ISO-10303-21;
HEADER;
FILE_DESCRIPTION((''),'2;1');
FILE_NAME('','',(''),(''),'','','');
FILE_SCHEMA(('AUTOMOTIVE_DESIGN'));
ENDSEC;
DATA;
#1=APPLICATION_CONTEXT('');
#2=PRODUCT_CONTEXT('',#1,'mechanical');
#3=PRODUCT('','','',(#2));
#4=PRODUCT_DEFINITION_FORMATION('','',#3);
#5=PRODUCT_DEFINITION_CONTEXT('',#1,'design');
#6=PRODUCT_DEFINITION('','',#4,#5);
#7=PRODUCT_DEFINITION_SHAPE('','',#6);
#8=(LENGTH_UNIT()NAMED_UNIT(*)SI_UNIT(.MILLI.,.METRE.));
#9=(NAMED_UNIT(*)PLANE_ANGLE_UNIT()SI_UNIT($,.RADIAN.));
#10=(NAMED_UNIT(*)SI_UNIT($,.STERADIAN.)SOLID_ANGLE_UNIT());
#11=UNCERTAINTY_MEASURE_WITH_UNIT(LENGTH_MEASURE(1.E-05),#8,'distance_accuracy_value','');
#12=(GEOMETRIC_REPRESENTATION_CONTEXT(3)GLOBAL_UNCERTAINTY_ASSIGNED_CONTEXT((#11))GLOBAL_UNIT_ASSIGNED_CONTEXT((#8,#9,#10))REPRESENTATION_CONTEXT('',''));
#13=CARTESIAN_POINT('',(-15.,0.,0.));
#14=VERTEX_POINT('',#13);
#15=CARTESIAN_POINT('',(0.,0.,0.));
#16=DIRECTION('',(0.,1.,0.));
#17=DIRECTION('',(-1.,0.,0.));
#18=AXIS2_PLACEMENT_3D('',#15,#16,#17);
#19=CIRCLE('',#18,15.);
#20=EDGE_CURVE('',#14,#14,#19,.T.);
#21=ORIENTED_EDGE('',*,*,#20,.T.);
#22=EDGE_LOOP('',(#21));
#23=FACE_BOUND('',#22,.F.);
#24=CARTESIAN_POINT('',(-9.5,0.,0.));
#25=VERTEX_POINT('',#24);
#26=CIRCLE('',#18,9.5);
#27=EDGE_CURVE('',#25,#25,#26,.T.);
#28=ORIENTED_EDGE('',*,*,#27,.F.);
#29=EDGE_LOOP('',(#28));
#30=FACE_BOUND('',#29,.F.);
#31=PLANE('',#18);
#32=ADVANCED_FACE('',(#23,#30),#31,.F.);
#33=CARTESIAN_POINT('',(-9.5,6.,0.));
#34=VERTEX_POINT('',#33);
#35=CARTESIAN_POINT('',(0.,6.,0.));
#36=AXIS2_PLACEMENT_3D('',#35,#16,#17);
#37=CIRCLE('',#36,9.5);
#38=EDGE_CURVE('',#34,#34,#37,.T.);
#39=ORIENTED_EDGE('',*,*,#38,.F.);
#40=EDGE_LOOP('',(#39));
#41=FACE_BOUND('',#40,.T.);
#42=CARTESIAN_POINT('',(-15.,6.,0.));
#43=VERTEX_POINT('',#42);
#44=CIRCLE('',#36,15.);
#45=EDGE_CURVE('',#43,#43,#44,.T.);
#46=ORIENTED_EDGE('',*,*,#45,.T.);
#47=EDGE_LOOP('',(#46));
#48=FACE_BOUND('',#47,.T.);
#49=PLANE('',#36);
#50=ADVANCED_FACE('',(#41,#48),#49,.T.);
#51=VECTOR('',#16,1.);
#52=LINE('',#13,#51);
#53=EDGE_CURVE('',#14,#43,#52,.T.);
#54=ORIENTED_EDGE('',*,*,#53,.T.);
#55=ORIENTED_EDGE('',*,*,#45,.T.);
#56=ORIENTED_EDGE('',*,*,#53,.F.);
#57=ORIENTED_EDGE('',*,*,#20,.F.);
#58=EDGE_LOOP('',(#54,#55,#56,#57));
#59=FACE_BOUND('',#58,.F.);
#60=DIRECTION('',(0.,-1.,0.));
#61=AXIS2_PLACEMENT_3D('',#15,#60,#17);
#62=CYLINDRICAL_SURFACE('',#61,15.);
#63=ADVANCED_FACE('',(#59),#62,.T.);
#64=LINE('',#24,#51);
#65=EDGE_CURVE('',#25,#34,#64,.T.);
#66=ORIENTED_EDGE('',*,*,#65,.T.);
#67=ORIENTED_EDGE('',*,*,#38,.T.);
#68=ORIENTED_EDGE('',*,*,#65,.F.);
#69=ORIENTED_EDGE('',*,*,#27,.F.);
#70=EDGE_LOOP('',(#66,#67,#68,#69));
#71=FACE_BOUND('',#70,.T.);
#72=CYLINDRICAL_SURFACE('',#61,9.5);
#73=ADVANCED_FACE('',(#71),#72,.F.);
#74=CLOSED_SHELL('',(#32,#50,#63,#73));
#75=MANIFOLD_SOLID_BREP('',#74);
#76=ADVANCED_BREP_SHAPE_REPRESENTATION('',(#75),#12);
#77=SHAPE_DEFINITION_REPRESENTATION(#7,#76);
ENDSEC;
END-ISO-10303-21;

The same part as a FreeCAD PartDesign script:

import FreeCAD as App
import Part
import Sketcher

doc = App.newDocument("Part")
body = doc.addObject("PartDesign::Body", "Body")

sketch1 = body.newObject("Sketcher::SketchObject", "Sketch")
sketch1.AttachmentSupport = (doc.getObject("XZ_Plane"), [""])
sketch1.MapMode = "FlatFace"
sketch1.addGeometry(Part.Circle(App.Vector(0, 0, 0), App.Vector(0, 0, 1), 15), False)
sketch1.addGeometry(Part.Circle(App.Vector(0, 0, 0), App.Vector(0, 0, 1), 9.5), False)
sketch1.addConstraint(Sketcher.Constraint("Coincident", 0, 3, -1, 1))
sketch1.addConstraint(Sketcher.Constraint("Coincident", 1, 3, -1, 1))
sketch1.addConstraint(Sketcher.Constraint("Diameter", 0, 30.0))
sketch1.addConstraint(Sketcher.Constraint("Diameter", 1, 19.0))
pad1 = body.newObject("PartDesign::Pad", "Pad")
pad1.Profile = sketch1
pad1.Length = 6
pad1.Reversed = True

doc.recompute()
